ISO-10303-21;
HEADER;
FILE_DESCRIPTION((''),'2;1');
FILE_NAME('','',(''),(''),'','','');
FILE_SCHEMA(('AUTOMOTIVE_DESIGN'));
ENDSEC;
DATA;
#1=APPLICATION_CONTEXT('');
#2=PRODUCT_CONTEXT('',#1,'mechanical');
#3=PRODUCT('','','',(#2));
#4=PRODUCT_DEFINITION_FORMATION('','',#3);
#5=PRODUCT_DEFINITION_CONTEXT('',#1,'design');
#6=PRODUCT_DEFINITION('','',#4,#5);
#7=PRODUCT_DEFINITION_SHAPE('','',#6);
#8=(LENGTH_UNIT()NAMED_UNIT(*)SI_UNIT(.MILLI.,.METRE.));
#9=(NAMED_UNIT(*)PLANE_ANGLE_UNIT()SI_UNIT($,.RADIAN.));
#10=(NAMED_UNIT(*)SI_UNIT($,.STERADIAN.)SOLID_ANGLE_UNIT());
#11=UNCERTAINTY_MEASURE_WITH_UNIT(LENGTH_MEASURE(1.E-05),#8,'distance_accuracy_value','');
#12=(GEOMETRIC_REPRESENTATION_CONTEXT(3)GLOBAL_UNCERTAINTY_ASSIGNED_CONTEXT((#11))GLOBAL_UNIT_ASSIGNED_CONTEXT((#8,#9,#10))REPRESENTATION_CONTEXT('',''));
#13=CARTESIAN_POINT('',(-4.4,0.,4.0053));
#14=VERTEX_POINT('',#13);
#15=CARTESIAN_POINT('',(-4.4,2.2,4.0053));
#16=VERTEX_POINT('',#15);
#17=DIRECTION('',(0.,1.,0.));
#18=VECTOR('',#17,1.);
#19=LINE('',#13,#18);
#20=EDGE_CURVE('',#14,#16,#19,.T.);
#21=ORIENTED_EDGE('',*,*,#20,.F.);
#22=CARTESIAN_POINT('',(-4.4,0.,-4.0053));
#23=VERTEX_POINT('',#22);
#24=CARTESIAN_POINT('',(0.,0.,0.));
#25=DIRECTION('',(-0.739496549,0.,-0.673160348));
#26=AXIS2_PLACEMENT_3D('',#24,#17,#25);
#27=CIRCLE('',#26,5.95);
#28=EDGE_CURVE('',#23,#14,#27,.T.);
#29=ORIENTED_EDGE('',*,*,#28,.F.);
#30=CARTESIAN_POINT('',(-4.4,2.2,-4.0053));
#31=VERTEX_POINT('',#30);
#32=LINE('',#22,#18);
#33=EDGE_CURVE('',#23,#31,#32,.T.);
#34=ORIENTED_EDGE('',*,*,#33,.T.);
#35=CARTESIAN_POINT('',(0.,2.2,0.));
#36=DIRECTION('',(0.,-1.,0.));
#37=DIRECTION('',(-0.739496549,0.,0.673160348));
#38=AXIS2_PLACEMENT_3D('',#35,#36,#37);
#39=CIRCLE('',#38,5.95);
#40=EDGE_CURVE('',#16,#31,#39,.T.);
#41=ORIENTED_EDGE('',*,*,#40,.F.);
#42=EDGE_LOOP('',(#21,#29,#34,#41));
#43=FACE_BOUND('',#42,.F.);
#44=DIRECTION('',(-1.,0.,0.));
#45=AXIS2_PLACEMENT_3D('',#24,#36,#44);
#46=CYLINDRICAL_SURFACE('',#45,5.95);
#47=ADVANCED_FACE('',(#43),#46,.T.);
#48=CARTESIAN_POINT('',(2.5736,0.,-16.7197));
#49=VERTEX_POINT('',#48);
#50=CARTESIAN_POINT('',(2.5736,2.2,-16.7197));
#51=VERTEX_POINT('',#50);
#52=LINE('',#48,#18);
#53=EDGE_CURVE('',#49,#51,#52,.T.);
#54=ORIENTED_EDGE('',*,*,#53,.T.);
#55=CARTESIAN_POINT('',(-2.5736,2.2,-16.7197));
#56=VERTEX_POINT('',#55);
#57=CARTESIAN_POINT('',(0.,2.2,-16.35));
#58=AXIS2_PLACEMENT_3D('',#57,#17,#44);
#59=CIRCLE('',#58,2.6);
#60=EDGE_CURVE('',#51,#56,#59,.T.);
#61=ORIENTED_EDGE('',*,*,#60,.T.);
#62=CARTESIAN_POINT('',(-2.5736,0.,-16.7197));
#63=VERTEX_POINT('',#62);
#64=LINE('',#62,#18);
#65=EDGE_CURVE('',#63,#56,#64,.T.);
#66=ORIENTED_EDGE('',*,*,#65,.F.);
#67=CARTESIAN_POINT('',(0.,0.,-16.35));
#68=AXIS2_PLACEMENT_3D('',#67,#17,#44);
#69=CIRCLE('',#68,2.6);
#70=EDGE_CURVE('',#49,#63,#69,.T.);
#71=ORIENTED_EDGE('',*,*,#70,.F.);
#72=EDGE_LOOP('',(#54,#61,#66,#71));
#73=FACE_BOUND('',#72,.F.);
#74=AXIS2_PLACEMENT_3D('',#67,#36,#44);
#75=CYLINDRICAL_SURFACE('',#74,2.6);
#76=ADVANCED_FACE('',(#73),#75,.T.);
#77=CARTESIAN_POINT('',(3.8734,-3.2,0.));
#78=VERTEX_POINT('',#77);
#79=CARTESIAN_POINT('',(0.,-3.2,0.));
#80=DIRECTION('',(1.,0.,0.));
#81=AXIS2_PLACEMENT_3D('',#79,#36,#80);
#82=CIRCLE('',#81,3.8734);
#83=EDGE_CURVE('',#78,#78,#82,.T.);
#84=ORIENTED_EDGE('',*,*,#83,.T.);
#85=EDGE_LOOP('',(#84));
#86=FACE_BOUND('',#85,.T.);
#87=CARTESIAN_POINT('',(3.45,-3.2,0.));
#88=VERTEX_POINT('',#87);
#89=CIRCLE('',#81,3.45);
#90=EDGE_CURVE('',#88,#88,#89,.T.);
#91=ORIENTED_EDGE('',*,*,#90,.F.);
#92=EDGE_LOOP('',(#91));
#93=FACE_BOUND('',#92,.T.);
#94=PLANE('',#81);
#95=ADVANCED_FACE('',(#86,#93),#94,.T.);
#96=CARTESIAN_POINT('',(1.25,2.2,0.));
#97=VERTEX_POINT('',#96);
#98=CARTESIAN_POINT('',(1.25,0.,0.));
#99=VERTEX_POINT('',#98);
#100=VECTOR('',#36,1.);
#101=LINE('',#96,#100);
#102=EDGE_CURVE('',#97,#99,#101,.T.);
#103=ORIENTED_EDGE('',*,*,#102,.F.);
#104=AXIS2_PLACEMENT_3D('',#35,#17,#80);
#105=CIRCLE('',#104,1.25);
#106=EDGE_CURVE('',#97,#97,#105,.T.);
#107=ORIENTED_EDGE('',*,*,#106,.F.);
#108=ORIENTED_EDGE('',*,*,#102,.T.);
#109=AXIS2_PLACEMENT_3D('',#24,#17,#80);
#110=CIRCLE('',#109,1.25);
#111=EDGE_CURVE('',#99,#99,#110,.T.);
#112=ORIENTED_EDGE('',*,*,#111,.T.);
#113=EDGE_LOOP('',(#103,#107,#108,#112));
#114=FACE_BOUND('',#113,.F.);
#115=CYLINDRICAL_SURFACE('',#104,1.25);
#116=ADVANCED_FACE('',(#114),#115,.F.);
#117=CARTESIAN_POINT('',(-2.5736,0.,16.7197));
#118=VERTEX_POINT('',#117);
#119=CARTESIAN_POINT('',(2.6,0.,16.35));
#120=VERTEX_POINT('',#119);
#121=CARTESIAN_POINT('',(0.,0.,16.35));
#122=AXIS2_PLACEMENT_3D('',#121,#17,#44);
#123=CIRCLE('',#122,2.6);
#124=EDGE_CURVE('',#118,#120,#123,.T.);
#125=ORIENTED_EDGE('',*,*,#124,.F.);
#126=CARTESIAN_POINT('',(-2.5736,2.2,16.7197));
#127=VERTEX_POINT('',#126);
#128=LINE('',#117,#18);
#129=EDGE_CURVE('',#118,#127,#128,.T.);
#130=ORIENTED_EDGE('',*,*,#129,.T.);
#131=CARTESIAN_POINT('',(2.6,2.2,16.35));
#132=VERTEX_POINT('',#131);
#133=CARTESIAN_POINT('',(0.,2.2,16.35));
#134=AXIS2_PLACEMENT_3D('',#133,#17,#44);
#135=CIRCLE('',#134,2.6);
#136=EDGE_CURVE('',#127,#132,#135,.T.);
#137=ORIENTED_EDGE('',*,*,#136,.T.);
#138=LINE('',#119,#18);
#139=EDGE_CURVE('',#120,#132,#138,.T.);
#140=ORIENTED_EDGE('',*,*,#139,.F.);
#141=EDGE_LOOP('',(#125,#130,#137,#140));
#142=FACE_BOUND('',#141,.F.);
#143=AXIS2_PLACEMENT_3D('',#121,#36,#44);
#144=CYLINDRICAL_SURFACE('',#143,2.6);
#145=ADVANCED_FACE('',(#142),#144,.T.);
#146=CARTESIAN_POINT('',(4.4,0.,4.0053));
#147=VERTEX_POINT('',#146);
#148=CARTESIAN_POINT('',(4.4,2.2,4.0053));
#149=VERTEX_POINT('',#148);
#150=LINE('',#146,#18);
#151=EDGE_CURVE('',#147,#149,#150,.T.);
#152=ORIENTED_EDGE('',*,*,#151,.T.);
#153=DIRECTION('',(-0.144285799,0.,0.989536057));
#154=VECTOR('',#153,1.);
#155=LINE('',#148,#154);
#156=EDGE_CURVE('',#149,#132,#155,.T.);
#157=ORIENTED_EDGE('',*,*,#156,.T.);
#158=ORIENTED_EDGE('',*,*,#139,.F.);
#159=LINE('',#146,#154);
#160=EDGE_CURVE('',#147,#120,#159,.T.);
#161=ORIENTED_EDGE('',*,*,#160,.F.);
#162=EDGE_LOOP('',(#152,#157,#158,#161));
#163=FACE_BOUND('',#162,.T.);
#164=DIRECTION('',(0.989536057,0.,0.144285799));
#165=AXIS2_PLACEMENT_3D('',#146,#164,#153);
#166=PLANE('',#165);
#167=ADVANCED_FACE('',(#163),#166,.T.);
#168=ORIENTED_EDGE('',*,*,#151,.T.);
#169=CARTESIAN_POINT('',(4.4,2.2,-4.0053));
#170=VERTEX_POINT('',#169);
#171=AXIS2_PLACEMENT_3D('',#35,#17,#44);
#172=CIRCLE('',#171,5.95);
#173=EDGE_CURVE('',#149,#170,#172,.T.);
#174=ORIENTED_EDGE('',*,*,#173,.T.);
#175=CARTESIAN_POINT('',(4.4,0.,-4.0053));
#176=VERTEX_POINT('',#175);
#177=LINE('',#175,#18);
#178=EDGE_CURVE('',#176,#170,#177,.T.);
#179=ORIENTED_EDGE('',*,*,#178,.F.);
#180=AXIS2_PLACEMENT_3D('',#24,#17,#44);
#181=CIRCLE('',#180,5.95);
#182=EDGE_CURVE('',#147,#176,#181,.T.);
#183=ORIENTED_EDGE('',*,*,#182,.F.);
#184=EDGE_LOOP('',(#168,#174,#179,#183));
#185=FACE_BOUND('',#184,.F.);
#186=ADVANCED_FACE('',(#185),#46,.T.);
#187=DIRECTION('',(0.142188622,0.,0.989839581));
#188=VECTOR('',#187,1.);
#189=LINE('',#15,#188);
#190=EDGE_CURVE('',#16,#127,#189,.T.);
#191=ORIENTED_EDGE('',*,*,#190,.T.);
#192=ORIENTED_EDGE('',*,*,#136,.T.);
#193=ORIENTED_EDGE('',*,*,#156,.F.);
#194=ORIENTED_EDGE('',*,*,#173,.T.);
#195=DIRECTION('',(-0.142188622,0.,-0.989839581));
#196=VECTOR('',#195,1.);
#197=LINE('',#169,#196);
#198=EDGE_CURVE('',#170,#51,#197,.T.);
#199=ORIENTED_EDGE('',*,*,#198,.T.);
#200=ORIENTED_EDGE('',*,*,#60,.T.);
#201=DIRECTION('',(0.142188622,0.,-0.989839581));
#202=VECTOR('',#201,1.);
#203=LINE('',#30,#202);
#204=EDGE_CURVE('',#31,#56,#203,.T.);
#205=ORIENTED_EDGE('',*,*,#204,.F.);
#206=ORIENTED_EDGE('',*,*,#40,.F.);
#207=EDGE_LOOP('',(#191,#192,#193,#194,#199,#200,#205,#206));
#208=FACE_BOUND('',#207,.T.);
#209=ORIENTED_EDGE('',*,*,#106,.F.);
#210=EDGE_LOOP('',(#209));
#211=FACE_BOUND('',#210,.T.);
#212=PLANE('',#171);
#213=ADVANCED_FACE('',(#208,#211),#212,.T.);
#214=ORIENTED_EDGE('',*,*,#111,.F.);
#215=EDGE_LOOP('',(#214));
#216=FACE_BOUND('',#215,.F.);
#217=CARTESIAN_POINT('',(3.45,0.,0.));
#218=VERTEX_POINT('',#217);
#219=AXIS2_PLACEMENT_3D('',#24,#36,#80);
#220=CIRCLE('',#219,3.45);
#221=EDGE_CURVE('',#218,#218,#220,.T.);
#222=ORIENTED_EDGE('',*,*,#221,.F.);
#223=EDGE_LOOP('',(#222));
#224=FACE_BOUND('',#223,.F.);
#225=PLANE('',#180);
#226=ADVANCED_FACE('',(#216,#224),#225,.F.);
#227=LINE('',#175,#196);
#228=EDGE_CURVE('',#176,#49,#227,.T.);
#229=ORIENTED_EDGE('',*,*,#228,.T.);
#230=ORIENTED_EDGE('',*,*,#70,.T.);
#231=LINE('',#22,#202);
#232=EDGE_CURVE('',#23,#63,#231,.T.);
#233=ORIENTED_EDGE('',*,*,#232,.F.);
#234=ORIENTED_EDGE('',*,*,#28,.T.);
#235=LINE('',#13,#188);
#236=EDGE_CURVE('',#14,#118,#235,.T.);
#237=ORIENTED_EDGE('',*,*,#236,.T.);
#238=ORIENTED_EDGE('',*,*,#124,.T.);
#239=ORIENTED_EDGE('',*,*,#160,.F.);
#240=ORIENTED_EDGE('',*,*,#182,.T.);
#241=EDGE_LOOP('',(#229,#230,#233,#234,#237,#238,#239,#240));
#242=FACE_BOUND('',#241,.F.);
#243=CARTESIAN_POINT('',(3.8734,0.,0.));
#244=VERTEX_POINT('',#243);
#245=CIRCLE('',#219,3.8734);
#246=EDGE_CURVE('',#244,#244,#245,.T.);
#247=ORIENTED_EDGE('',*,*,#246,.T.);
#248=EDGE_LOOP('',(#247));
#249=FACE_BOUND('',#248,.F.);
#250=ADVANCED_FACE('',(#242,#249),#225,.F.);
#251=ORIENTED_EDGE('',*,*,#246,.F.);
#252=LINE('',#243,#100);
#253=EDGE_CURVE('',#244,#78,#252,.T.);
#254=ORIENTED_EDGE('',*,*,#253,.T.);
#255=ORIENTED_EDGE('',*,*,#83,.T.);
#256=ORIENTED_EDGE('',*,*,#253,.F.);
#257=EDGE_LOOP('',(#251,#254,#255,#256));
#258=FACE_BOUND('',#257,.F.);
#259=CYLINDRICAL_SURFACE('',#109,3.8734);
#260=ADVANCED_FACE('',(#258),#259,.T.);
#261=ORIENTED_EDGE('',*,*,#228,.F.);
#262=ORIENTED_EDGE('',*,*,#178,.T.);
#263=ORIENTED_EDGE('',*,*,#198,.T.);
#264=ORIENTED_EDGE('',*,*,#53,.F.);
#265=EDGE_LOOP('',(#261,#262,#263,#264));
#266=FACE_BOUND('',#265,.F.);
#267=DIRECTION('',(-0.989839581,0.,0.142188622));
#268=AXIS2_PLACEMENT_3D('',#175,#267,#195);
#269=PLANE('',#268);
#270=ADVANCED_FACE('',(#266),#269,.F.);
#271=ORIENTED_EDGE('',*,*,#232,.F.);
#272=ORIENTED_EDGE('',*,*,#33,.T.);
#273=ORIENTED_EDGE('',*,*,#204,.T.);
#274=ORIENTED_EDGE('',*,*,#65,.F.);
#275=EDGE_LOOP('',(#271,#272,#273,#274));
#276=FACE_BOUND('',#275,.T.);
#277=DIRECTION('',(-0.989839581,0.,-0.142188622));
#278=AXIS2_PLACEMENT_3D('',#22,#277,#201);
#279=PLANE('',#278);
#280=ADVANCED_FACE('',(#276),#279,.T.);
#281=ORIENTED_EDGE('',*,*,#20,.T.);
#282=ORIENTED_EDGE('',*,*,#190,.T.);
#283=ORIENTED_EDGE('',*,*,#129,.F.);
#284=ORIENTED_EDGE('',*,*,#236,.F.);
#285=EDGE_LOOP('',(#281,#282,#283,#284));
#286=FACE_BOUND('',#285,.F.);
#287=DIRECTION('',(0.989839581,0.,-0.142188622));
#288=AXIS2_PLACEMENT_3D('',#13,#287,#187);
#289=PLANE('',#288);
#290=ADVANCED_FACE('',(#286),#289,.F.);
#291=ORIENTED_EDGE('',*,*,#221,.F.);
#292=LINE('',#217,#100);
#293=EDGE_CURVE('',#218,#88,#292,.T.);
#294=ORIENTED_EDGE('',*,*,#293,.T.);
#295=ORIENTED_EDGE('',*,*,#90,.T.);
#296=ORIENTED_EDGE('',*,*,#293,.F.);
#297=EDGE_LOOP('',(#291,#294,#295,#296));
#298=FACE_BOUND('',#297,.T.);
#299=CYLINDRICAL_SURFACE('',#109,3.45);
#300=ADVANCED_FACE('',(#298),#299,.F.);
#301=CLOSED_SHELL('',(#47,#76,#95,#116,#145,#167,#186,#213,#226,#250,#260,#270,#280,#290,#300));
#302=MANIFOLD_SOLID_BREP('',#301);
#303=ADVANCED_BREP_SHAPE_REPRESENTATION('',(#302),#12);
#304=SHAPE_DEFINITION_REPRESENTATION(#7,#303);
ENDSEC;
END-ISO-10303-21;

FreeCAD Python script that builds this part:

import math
import FreeCAD as App
import Part
import Sketcher
from FreeCAD import Vector
Q = App.Units.Quantity

doc = App.newDocument("Part")
body = doc.addObject("PartDesign::Body", "Body")

# Sketch on XZ plane
sketch1 = body.newObject("Sketcher::SketchObject", "Sketch")
sketch1.AttachmentSupport = (doc.getObject("XZ_Plane"), [""])
sketch1.MapMode = "FlatFace"
sketch1.addGeometry([
    Part.ArcOfCircle(Part.Circle(Vector(0, 0, 0), Vector(0, 0, 1), 6), math.radians(138), math.radians(222)),  # 0
    Part.LineSegment(Vector(-4.4, 4, 0), Vector(-2.6, 16.7, 0)),  # 1
    Part.ArcOfCircle(Part.Circle(Vector(0, 16.4, 0), Vector(0, 0, 1), 2.6), math.radians(0), math.radians(172)),  # 2
    Part.LineSegment(Vector(2.6, 16.4, 0), Vector(4.4, 4, 0)),  # 3
    Part.ArcOfCircle(Part.Circle(Vector(0, 0, 0), Vector(0, 0, 1), 6), math.radians(-42), math.radians(42)),  # 4
    Part.LineSegment(Vector(4.4, -4, 0), Vector(2.6, -16.7, 0)),  # 5
    Part.ArcOfCircle(Part.Circle(Vector(0, -16.4, 0), Vector(0, 0, 1), 2.6), math.radians(-172), math.radians(-8)),  # 6
    Part.LineSegment(Vector(-2.6, -16.7, 0), Vector(-4.4, -4, 0)),  # 7
], False)
sketch1.addConstraint([
    Sketcher.Constraint("Coincident", 0, 1, 1, 1),
    Sketcher.Constraint("Tangent", 1, 2, 2, 2),
    Sketcher.Constraint("Coincident", 2, 1, 3, 1),
    Sketcher.Constraint("Coincident", 3, 2, 4, 2),
    Sketcher.Constraint("Coincident", 4, 1, 5, 1),
    Sketcher.Constraint("Tangent", 5, 2, 6, 2),
    Sketcher.Constraint("Tangent", 6, 1, 7, 1),
    Sketcher.Constraint("Coincident", 7, 2, 0, 2),
    Sketcher.Constraint("Coincident", 0, 3, -1, 1),
    Sketcher.Constraint("Coincident", 4, 3, -1, 1),
    Sketcher.Constraint("Equal", 0, 4),
    Sketcher.Constraint("Equal", 2, 6),
    Sketcher.Constraint("Symmetric", 2, 3, 6, 3, -1, 1),
    Sketcher.Constraint("Symmetric", 5, 2, 6, 1, -2),
    Sketcher.Constraint("Parallel", 1, 5),
    Sketcher.Constraint("Horizontal", 0, 1, 3, 2),
    Sketcher.Constraint("Radius", 2, Q("2.6 mm")),
    Sketcher.Constraint("Radius", 0, Q("5.95 mm")),
    Sketcher.Constraint("DistanceX", 0, 1, -1, 1, Q("4.4 mm")),
    Sketcher.Constraint("DistanceY", -1, 1, 2, 3, Q("16.35 mm")),
    Sketcher.Constraint("DistanceY", -1, 1, 2, 1, Q("16.35 mm")),
])
pad1 = body.newObject("PartDesign::Pad", "Pad")
pad1.Profile = sketch1
pad1.Length = 2.2
pad1.Reversed = True

# Sketch on XZ plane
sketch2 = body.newObject("Sketcher::SketchObject", "Sketch001")
sketch2.AttachmentSupport = (doc.getObject("XZ_Plane"), [""])
sketch2.MapMode = "FlatFace"
sketch2.addGeometry([
    Part.Circle(Vector(0, 0, 0), Vector(0, 0, 1), 3.9),
    Part.Circle(Vector(0, 0, 0), Vector(0, 0, 1), 3.5),
], False)
sketch2.addConstraint([
    Sketcher.Constraint("Coincident", 0, 3, -1, 1),
    Sketcher.Constraint("Coincident", 1, 3, -1, 1),
    Sketcher.Constraint("Diameter", 1, Q("6.9 mm")),
    Sketcher.Constraint("Diameter", 0, Q("7.7468 mm")),
])
pad2 = body.newObject("PartDesign::Pad", "Pad001")
pad2.Profile = sketch2
pad2.Length = 3.2

# Sketch on XZ plane
sketch3 = body.newObject("Sketcher::SketchObject", "Sketch002")
sketch3.AttachmentSupport = (doc.getObject("XZ_Plane"), [""])
sketch3.MapMode = "FlatFace"
sketch3.AttachmentOffset = App.Placement(Vector(0, 0, -2.2), App.Rotation())
sketch3.addGeometry(Part.Circle(Vector(0, 0, 0), Vector(0, 0, 1), 1.2), False)
sketch3.addConstraint([
    Sketcher.Constraint("Coincident", 0, 3, -1, 1),
    Sketcher.Constraint("Diameter", 0, Q("2.5 mm")),
])
pocket1 = body.newObject("PartDesign::Pocket", "Pocket")
pocket1.Profile = sketch3
pocket1.Length = 2.2
pocket1.Reversed = True

doc.recompute()
